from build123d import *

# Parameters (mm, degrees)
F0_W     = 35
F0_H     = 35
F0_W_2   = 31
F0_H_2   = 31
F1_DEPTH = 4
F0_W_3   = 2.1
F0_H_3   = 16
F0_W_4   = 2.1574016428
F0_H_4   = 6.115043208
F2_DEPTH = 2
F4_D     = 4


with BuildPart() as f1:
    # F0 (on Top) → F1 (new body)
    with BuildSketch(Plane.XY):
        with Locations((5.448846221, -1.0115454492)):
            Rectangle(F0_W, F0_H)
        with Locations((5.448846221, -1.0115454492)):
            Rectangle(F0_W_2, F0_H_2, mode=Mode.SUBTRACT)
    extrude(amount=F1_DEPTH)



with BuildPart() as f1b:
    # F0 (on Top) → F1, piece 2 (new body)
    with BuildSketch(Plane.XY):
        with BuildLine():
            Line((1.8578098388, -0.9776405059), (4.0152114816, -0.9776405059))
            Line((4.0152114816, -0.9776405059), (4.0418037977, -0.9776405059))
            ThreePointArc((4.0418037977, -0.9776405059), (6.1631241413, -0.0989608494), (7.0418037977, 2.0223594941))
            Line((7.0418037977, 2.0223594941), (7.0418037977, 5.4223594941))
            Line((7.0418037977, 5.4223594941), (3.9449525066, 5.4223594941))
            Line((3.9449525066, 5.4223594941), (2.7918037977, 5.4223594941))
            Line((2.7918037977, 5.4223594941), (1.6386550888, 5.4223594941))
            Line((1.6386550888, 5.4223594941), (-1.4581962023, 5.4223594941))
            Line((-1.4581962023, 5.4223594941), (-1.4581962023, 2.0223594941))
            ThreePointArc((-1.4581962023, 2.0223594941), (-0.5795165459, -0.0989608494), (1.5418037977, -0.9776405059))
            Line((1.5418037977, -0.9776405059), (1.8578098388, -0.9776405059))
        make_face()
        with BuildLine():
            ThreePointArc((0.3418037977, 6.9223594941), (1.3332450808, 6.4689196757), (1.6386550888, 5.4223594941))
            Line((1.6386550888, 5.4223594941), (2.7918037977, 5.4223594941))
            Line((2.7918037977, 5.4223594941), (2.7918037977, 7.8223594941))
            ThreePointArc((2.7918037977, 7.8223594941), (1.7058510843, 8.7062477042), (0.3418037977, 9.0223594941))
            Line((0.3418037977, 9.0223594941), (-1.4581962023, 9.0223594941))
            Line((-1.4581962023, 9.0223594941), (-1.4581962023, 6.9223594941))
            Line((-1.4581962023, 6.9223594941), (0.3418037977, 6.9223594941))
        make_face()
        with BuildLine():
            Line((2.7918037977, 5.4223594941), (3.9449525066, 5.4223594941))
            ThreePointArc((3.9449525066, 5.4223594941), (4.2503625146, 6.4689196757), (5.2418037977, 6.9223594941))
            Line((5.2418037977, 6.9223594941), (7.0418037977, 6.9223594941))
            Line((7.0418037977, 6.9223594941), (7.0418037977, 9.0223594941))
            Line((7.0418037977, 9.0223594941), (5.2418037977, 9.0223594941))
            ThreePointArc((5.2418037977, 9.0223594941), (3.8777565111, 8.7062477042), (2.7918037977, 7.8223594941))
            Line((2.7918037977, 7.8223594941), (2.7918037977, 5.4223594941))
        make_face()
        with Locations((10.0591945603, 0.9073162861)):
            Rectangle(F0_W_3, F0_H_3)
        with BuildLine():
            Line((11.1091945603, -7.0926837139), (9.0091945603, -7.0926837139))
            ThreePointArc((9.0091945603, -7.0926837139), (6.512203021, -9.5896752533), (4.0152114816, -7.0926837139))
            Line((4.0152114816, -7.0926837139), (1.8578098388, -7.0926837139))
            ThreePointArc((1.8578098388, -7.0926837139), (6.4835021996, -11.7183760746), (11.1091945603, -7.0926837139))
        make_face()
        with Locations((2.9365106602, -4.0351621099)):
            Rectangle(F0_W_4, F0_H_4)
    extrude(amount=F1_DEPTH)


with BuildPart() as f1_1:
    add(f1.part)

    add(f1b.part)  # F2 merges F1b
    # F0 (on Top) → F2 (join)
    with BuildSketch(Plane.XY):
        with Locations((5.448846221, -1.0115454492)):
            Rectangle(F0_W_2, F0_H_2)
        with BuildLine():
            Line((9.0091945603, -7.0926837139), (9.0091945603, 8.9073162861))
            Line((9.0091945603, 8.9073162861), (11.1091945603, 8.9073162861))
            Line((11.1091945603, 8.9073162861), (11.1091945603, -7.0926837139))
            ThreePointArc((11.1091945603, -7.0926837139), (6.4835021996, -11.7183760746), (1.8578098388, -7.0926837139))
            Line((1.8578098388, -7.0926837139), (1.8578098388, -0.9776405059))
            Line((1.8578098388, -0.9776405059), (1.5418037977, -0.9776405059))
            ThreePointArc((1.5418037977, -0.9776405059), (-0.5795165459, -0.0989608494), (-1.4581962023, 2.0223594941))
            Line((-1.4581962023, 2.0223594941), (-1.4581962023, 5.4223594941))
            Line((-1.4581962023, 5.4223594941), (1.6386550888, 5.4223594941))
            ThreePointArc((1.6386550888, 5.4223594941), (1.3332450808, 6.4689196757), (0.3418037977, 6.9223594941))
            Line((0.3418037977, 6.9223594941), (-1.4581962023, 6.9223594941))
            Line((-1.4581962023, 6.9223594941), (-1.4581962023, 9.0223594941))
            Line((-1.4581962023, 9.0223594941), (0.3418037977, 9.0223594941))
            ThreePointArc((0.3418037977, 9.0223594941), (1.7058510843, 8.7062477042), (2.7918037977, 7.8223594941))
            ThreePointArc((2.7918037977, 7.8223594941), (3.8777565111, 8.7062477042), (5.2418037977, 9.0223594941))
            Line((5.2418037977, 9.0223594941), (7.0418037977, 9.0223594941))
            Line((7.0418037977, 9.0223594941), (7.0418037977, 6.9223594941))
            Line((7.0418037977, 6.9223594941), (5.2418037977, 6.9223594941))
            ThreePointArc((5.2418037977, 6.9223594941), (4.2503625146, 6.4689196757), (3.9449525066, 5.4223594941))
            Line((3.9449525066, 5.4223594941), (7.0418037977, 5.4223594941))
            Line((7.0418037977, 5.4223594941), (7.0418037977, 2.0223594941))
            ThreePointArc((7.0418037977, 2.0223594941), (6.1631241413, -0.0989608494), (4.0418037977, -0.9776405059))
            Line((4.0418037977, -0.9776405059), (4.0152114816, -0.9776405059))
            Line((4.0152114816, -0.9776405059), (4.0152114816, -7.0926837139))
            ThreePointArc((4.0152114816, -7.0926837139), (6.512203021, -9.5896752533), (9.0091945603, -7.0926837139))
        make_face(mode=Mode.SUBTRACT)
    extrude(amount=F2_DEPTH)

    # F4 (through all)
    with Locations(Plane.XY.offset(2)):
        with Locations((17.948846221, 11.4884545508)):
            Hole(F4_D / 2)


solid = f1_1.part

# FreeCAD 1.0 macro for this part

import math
import FreeCAD as App
import Part
import Sketcher

V = App.Vector
Q = App.Units.Quantity


def add_polygon(sketch, points):
    """Adds a closed chain of lines whose ends are joined by coincident constraints."""
    first, n = sketch.GeometryCount, len(points)
    for a, b in zip(points, points[1:] + points[:1]):
        sketch.addGeometry(Part.LineSegment(App.Vector(*a, 0), App.Vector(*b, 0)), False)
    for i in range(n):
        sketch.addConstraint(Sketcher.Constraint("Coincident", first + i, 2, first + (i + 1) % n, 1))

doc = App.newDocument("Part")
params = doc.addObject("Spreadsheet::Sheet", "Params")
for row, (alias, value) in enumerate([
    ("sketch1_width", "35 mm"),
    ("sketch1_width2", "31 mm"),
    ("pad1_length", "4 mm"),
    ("sketch2_radius", "3 mm"),
    ("sketch2_height", "16 mm"),
    ("sketch2_width", "1.8 mm"),
    ("sketch2_width2", "2.1 mm"),
    ("sketch2_height2", "3.4 mm"),
    ("pad2_length", "4 mm"),
    ("sketch3_radius", "3 mm"),
    ("sketch3_width", "31 mm"),
    ("sketch3_height", "16 mm"),
    ("sketch3_width2", "2.1 mm"),
    ("sketch3_width3", "1.8 mm"),
    ("pad3_length", "2 mm"),
    ("sketch4_diameter", "4 mm"),
    ("hole_diameter", "4 mm"),
], start=1):
    params.set(f"A{row}", alias)
    params.set(f"B{row}", "=" + value)
    params.setAlias(f"B{row}", alias)

body = doc.addObject("PartDesign::Body", "Body")

sketch1 = body.newObject("Sketcher::SketchObject", "Sketch")
sketch1.AttachmentSupport = (doc.getObject("XY_Plane"), [""])
sketch1.MapMode = "FlatFace"
add_polygon(sketch1, [(-12, 16), (-12, -19), (23, -19), (23, 16)])
add_polygon(sketch1, [(21, -17), (-10, -17), (-10, 14), (21, 14)])
sketch1.addConstraint([
    Sketcher.Constraint("Vertical", 0),
    Sketcher.Constraint("Horizontal", 1),
    Sketcher.Constraint("Vertical", 2),
    Sketcher.Constraint("Horizontal", 3),
    Sketcher.Constraint("Horizontal", 4),
    Sketcher.Constraint("Vertical", 5),
    Sketcher.Constraint("Horizontal", 6),
    Sketcher.Constraint("Vertical", 7),
    Sketcher.Constraint("Equal", 3, 0),
    Sketcher.Constraint("Equal", 6, 5),
    Sketcher.Constraint("DistanceX", 1, 1, 1, 2, Q("35 mm")),
    Sketcher.Constraint("DistanceX", 4, 2, 4, 1, Q("31 mm")),
    Sketcher.Constraint("DistanceX", 0, 2, 4, 2, Q("2 mm")),
    Sketcher.Constraint("DistanceY", 0, 2, 4, 2, Q("2 mm")),
    Sketcher.Constraint("DistanceX", 0, 2, -1, 1, Q("12.051154 mm")),
    Sketcher.Constraint("DistanceY", 0, 2, -1, 1, Q("18.511545 mm")),
])
sketch1.setExpression("Constraints[18]", "Params.sketch1_width")
sketch1.setExpression("Constraints[19]", "Params.sketch1_width2")
pad1 = body.newObject("PartDesign::Pad", "Pad")
pad1.Profile = sketch1
pad1.setExpression("Length", "Params.pad1_length")
body2 = doc.addObject("PartDesign::Body", "Body001")

sketch2 = body2.newObject("Sketcher::SketchObject", "Sketch001")
sketch2.AttachmentSupport = (doc.getObject("XY_Plane001"), [""])
sketch2.MapMode = "FlatFace"
sketch2.addGeometry([
    Part.ArcOfCircle(Part.Circle(V(4.042, 2.022, 0), V(0, 0, 1), 3), math.radians(-90), math.radians(0)),
    Part.LineSegment(V(7.042, 2.022, 0), V(7.042, 5.422, 0)),
    Part.LineSegment(V(7.042, 5.422, 0), V(3.945, 5.422, 0)),
    Part.ArcOfCircle(Part.Circle(V(5.242, 5.612, 0), V(0, 0, 1), 1.311), math.radians(90), math.radians(188)),
    Part.LineSegment(V(5.242, 6.922, 0), V(7.042, 6.922, 0)),
    Part.LineSegment(V(7.042, 6.922, 0), V(7.042, 9.022, 0)),
    Part.LineSegment(V(7.042, 9.022, 0), V(5.242, 9.022, 0)),
    Part.ArcOfCircle(Part.Circle(V(5.242, 5.921, 0), V(0, 0, 1), 3.101), math.radians(90), math.radians(142)),
    Part.ArcOfCircle(Part.Circle(V(0.342, 5.921, 0), V(0, 0, 1), 3.101), math.radians(38), math.radians(90)),
    Part.LineSegment(V(0.342, 9.022, 0), V(-1.458, 9.022, 0)),
    Part.LineSegment(V(-1.458, 9.022, 0), V(-1.458, 6.922, 0)),
    Part.LineSegment(V(-1.458, 6.922, 0), V(0.342, 6.922, 0)),
    Part.ArcOfCircle(Part.Circle(V(0.342, 5.612, 0), V(0, 0, 1), 1.311), math.radians(-8), math.radians(90)),
    Part.LineSegment(V(1.639, 5.422, 0), V(-1.458, 5.422, 0)),
    Part.LineSegment(V(-1.458, 5.422, 0), V(-1.458, 2.022, 0)),
    Part.ArcOfCircle(Part.Circle(V(1.542, 2.022, 0), V(0, 0, 1), 3), math.radians(180), math.radians(270)),
    Part.LineSegment(V(1.542, -0.978, 0), V(1.858, -0.978, 0)),
    Part.LineSegment(V(1.858, -0.978, 0), V(1.858, -7.093, 0)),
    Part.ArcOfCircle(Part.Circle(V(6.484, -7.093, 0), V(0, 0, 1), 4.626), math.radians(180), math.radians(360)),
    Part.LineSegment(V(11.109, -7.093, 0), V(11.109, 8.907, 0)),
    Part.LineSegment(V(11.109, 8.907, 0), V(9.009, 8.907, 0)),
    Part.LineSegment(V(9.009, 8.907, 0), V(9.009, -7.093, 0)),
    Part.ArcOfCircle(Part.Circle(V(6.512, -7.093, 0), V(0, 0, 1), 2.497), math.radians(180), math.radians(360)),
    Part.LineSegment(V(4.015, -7.093, 0), V(4.015, -0.978, 0)),
    Part.LineSegment(V(4.015, -0.978, 0), V(4.042, -0.978, 0)),
], False)
sketch2.addConstraint([
    Sketcher.Constraint("Tangent", 0, 2, 1, 1),
    Sketcher.Constraint("Coincident", 1, 2, 2, 1),
    Sketcher.Constraint("Coincident", 2, 2, 3, 2),
    Sketcher.Constraint("Tangent", 3, 1, 4, 1),
    Sketcher.Constraint("Coincident", 4, 2, 5, 1),
    Sketcher.Constraint("Coincident", 5, 2, 6, 1),
    Sketcher.Constraint("Tangent", 6, 2, 7, 1),
    Sketcher.Constraint("Coincident", 7, 2, 8, 1),
    Sketcher.Constraint("Tangent", 8, 2, 9, 1),
    Sketcher.Constraint("Coincident", 9, 2, 10, 1),
    Sketcher.Constraint("Coincident", 10, 2, 11, 1),
    Sketcher.Constraint("Tangent", 11, 2, 12, 2),
    Sketcher.Constraint("Coincident", 12, 1, 13, 1),
    Sketcher.Constraint("Coincident", 13, 2, 14, 1),
    Sketcher.Constraint("Tangent", 14, 2, 15, 1),
    Sketcher.Constraint("Tangent", 15, 2, 16, 1),
    Sketcher.Constraint("Coincident", 16, 2, 17, 1),
    Sketcher.Constraint("Tangent", 17, 2, 18, 1),
    Sketcher.Constraint("Tangent", 18, 2, 19, 1),
    Sketcher.Constraint("Coincident", 19, 2, 20, 1),
    Sketcher.Constraint("Coincident", 20, 2, 21, 1),
    Sketcher.Constraint("Tangent", 21, 2, 22, 2),
    Sketcher.Constraint("Tangent", 22, 1, 23, 1),
    Sketcher.Constraint("Coincident", 23, 2, 24, 1),
    Sketcher.Constraint("Tangent", 24, 2, 0, 1),
    Sketcher.Constraint("Vertical", 1),
    Sketcher.Constraint("Horizontal", 2),
    Sketcher.Constraint("Horizontal", 4),
    Sketcher.Constraint("Vertical", 5),
    Sketcher.Constraint("Horizontal", 6),
    Sketcher.Constraint("Horizontal", 9),
    Sketcher.Constraint("Vertical", 10),
    Sketcher.Constraint("Horizontal", 11),
    Sketcher.Constraint("Horizontal", 13),
    Sketcher.Constraint("Vertical", 14),
    Sketcher.Constraint("Horizontal", 16),
    Sketcher.Constraint("Vertical", 17),
    Sketcher.Constraint("Vertical", 19),
    Sketcher.Constraint("Horizontal", 20),
    Sketcher.Constraint("Vertical", 21),
    Sketcher.Constraint("Vertical", 23),
    Sketcher.Constraint("Horizontal", 24),
    Sketcher.Constraint("Equal", 7, 8),
    Sketcher.Constraint("Equal", 3, 12),
    Sketcher.Constraint("Equal", 0, 15),
    Sketcher.Constraint("Horizontal", 7, 3, 8, 3),
    Sketcher.Constraint("Horizontal", 3, 3, 12, 3),
    Sketcher.Constraint("Horizontal", 0, 3, 15, 3),
    Sketcher.Constraint("Horizontal", 18, 3, 22, 3),
    Sketcher.Constraint("Horizontal", 2, 2, 12, 1),
    Sketcher.Constraint("Vertical", 3, 3, 7, 3),
    Sketcher.Constraint("Vertical", 8, 3, 12, 3),
    Sketcher.Constraint("Vertical", 1, 2, 4, 2),
    Sketcher.Constraint("Vertical", 10, 2, 13, 2),
    Sketcher.Constraint("Equal", 6, 9),
    Sketcher.Constraint("Equal", 20, 5),
    Sketcher.Constraint("Radius", 0, Q("3 mm")),
    Sketcher.Constraint("DistanceY", 19, 1, 19, 2, Q("16 mm")),
    Sketcher.Constraint("DistanceX", 4, 1, 4, 2, Q("1.8 mm")),
    Sketcher.Constraint("DistanceX", 20, 2, 20, 1, Q("2.1 mm")),
    Sketcher.Constraint("DistanceY", 1, 1, 1, 2, Q("3.4 mm")),
    Sketcher.Constraint("DistanceX", 8, 3, 7, 3, Q("4.9 mm")),
    Sketcher.Constraint("DistanceY", 2, 2, 3, 1, Q("1.5 mm")),
    Sketcher.Constraint("DistanceY", 3, 1, 7, 2, Q("0.9 mm")),
    Sketcher.Constraint("Radius", 22, Q("2.496992 mm")),
    Sketcher.Constraint("Radius", 3, Q("1.310608 mm")),
    Sketcher.Constraint("Radius", 18, Q("4.625692 mm")),
    Sketcher.Constraint("DistanceY", 18, 3, 7, 3, Q("13.014002 mm")),
    Sketcher.Constraint("DistanceX", 0, 3, 18, 3, Q("2.441698 mm")),
    Sketcher.Constraint("DistanceY", -1, 1, 0, 3, Q("2.022359 mm")),
    Sketcher.Constraint("DistanceX", -1, 1, 16, 2, Q("1.85781 mm")),
])
sketch2.setExpression("Constraints[56]", "Params.sketch2_radius")
sketch2.setExpression("Constraints[57]", "Params.sketch2_height")
sketch2.setExpression("Constraints[58]", "Params.sketch2_width")
sketch2.setExpression("Constraints[59]", "Params.sketch2_width2")
sketch2.setExpression("Constraints[60]", "Params.sketch2_height2")
pad2 = body2.newObject("PartDesign::Pad", "Pad001")
pad2.Profile = sketch2
pad2.setExpression("Length", "Params.pad2_length")
body.AllowCompound = True
doc.recompute()

boolean = body.newObject("PartDesign::Boolean", "Boolean")
boolean.Type = "Fuse"
boolean.addObjects([body2])

sketch3 = body.newObject("Sketcher::SketchObject", "Sketch002")
sketch3.AttachmentSupport = (doc.getObject("XY_Plane"), [""])
sketch3.MapMode = "FlatFace"
add_polygon(sketch3, [(-10.051, 14.488), (-10.051, -16.512), (20.949, -16.512), (20.949, 14.488)])
sketch3.addGeometry(Part.ArcOfCircle(Part.Circle(V(6.512, -7.093, 0), V(0, 0, 1), 2.497), math.radians(180), math.radians(360)), False)
sketch3.addGeometry(Part.LineSegment(V(9.009, -7.093, 0), V(9.009, 8.907, 0)), False)
sketch3.addGeometry(Part.LineSegment(V(9.009, 8.907, 0), V(11.109, 8.907, 0)), False)
sketch3.addGeometry(Part.LineSegment(V(11.109, 8.907, 0), V(11.109, -7.093, 0)), False)
sketch3.addGeometry(Part.ArcOfCircle(Part.Circle(V(6.484, -7.093, 0), V(0, 0, 1), 4.626), math.radians(180), math.radians(360)), False)
sketch3.addGeometry(Part.LineSegment(V(1.858, -7.093, 0), V(1.858, -0.978, 0)), False)
sketch3.addGeometry(Part.LineSegment(V(1.858, -0.978, 0), V(1.542, -0.978, 0)), False)
sketch3.addGeometry(Part.ArcOfCircle(Part.Circle(V(1.542, 2.022, 0), V(0, 0, 1), 3), math.radians(180), math.radians(270)), False)
sketch3.addGeometry(Part.LineSegment(V(-1.458, 2.022, 0), V(-1.458, 5.422, 0)), False)
sketch3.addGeometry(Part.LineSegment(V(-1.458, 5.422, 0), V(1.639, 5.422, 0)), False)
sketch3.addGeometry(Part.ArcOfCircle(Part.Circle(V(0.342, 5.612, 0), V(0, 0, 1), 1.311), math.radians(-8), math.radians(90)), False)
sketch3.addGeometry(Part.LineSegment(V(0.342, 6.922, 0), V(-1.458, 6.922, 0)), False)
sketch3.addGeometry(Part.LineSegment(V(-1.458, 6.922, 0), V(-1.458, 9.022, 0)), False)
sketch3.addGeometry(Part.LineSegment(V(-1.458, 9.022, 0), V(0.342, 9.022, 0)), False)
sketch3.addGeometry(Part.ArcOfCircle(Part.Circle(V(0.342, 5.921, 0), V(0, 0, 1), 3.101), math.radians(38), math.radians(90)), False)
sketch3.addGeometry(Part.ArcOfCircle(Part.Circle(V(5.242, 5.921, 0), V(0, 0, 1), 3.101), math.radians(90), math.radians(142)), False)
sketch3.addGeometry(Part.LineSegment(V(5.242, 9.022, 0), V(7.042, 9.022, 0)), False)
sketch3.addGeometry(Part.LineSegment(V(7.042, 9.022, 0), V(7.042, 6.922, 0)), False)
sketch3.addGeometry(Part.LineSegment(V(7.042, 6.922, 0), V(5.242, 6.922, 0)), False)
sketch3.addGeometry(Part.ArcOfCircle(Part.Circle(V(5.242, 5.612, 0), V(0, 0, 1), 1.311), math.radians(90), math.radians(188)), False)
sketch3.addGeometry(Part.LineSegment(V(3.945, 5.422, 0), V(7.042, 5.422, 0)), False)
sketch3.addGeometry(Part.LineSegment(V(7.042, 5.422, 0), V(7.042, 2.022, 0)), False)
sketch3.addGeometry(Part.ArcOfCircle(Part.Circle(V(4.042, 2.022, 0), V(0, 0, 1), 3), math.radians(-90), math.radians(0)), False)
sketch3.addGeometry(Part.LineSegment(V(4.042, -0.978, 0), V(4.015, -0.978, 0)), False)
sketch3.addGeometry(Part.LineSegment(V(4.015, -0.978, 0), V(4.015, -7.093, 0)), False)
sketch3.addConstraint([
    Sketcher.Constraint("Tangent", 4, 2, 5, 1),
    Sketcher.Constraint("Coincident", 5, 2, 6, 1),
    Sketcher.Constraint("Coincident", 6, 2, 7, 1),
    Sketcher.Constraint("Tangent", 7, 2, 8, 2),
    Sketcher.Constraint("Tangent", 8, 1, 9, 1),
    Sketcher.Constraint("Coincident", 9, 2, 10, 1),
    Sketcher.Constraint("Tangent", 10, 2, 11, 2),
    Sketcher.Constraint("Tangent", 11, 1, 12, 1),
    Sketcher.Constraint("Coincident", 12, 2, 13, 1),
    Sketcher.Constraint("Coincident", 13, 2, 14, 1),
    Sketcher.Constraint("Tangent", 14, 2, 15, 1),
    Sketcher.Constraint("Coincident", 15, 2, 16, 1),
    Sketcher.Constraint("Coincident", 16, 2, 17, 1),
    Sketcher.Constraint("Tangent", 17, 2, 18, 2),
    Sketcher.Constraint("Coincident", 18, 1, 19, 2),
    Sketcher.Constraint("Tangent", 19, 1, 20, 1),
    Sketcher.Constraint("Coincident", 20, 2, 21, 1),
    Sketcher.Constraint("Coincident", 21, 2, 22, 1),
    Sketcher.Constraint("Tangent", 22, 2, 23, 1),
    Sketcher.Constraint("Coincident", 23, 2, 24, 1),
    Sketcher.Constraint("Coincident", 24, 2, 25, 1),
    Sketcher.Constraint("Tangent", 25, 2, 26, 2),
    Sketcher.Constraint("Tangent", 26, 1, 27, 1),
    Sketcher.Constraint("Coincident", 27, 2, 28, 1),
    Sketcher.Constraint("Tangent", 28, 2, 4, 1),
    Sketcher.Constraint("Vertical", 0),
    Sketcher.Constraint("Horizontal", 1),
    Sketcher.Constraint("Vertical", 2),
    Sketcher.Constraint("Horizontal", 3),
    Sketcher.Constraint("Vertical", 5),
    Sketcher.Constraint("Horizontal", 6),
    Sketcher.Constraint("Vertical", 7),
    Sketcher.Constraint("Vertical", 9),
    Sketcher.Constraint("Horizontal", 10),
    Sketcher.Constraint("Vertical", 12),
    Sketcher.Constraint("Horizontal", 13),
    Sketcher.Constraint("Horizontal", 15),
    Sketcher.Constraint("Vertical", 16),
    Sketcher.Constraint("Horizontal", 17),
    Sketcher.Constraint("Horizontal", 20),
    Sketcher.Constraint("Vertical", 21),
    Sketcher.Constraint("Horizontal", 22),
    Sketcher.Constraint("Horizontal", 24),
    Sketcher.Constraint("Vertical", 25),
    Sketcher.Constraint("Horizontal", 27),
    Sketcher.Constraint("Vertical", 28),
    Sketcher.Constraint("Equal", 18, 19),
    Sketcher.Constraint("Equal", 14, 23),
    Sketcher.Constraint("Equal", 11, 26),
    Sketcher.Constraint("Horizontal", 4, 3, 8, 3),
    Sketcher.Constraint("Horizontal", 18, 3, 19, 3),
    Sketcher.Constraint("Horizontal", 14, 3, 23, 3),
    Sketcher.Constraint("Horizontal", 11, 3, 26, 3),
    Sketcher.Constraint("Horizontal", 13, 2, 23, 2),
    Sketcher.Constraint("Vertical", 14, 3, 18, 3),
    Sketcher.Constraint("Vertical", 19, 3, 23, 3),
    Sketcher.Constraint("Vertical", 12, 2, 15, 2),
    Sketcher.Constraint("Vertical", 21, 2, 24, 2),
    Sketcher.Constraint("Equal", 17, 20),
    Sketcher.Constraint("Equal", 3, 0),
    Sketcher.Constraint("Equal", 6, 16),
    Sketcher.Constraint("Radius", 11, Q("3 mm")),
    Sketcher.Constraint("DistanceX", 1, 1, 1, 2, Q("31 mm")),
    Sketcher.Constraint("DistanceY", 5, 1, 5, 2, Q("16 mm")),
    Sketcher.Constraint("DistanceX", 6, 1, 6, 2, Q("2.1 mm")),
    Sketcher.Constraint("DistanceX", 15, 2, 15, 1, Q("1.8 mm")),
    Sketcher.Constraint("DistanceY", 12, 1, 12, 2, Q("3.4 mm")),
    Sketcher.Constraint("DistanceX", 18, 3, 19, 3, Q("4.9 mm")),
    Sketcher.Constraint("DistanceY", 13, 2, 14, 2, Q("1.5 mm")),
    Sketcher.Constraint("DistanceY", 14, 2, 18, 1, Q("0.9 mm")),
    Sketcher.Constraint("Radius", 4, Q("2.496992 mm")),
    Sketcher.Constraint("Radius", 8, Q("4.625692 mm")),
    Sketcher.Constraint("Radius", 14, Q("1.310608 mm")),
    Sketcher.Constraint("DistanceY", 8, 3, 18, 3, Q("13.014002 mm")),
    Sketcher.Constraint("DistanceX", 11, 3, 8, 3, Q("4.941698 mm")),
    Sketcher.Constraint("DistanceY", -1, 1, 11, 3, Q("2.022359 mm")),
    Sketcher.Constraint("DistanceX", -1, 1, 8, 1, Q("1.85781 mm")),
    Sketcher.Constraint("DistanceY", 0, 2, 8, 3, Q("9.418862 mm")),
    Sketcher.Constraint("DistanceX", 0, 2, -1, 1, Q("10.051154 mm")),
])
sketch3.setExpression("Constraints[65]", "Params.sketch3_radius")
sketch3.setExpression("Constraints[66]", "Params.sketch3_width")
sketch3.setExpression("Constraints[67]", "Params.sketch3_height")
sketch3.setExpression("Constraints[68]", "Params.sketch3_width2")
sketch3.setExpression("Constraints[69]", "Params.sketch3_width3")
pad3 = body.newObject("PartDesign::Pad", "Pad002")
pad3.Profile = sketch3
pad3.setExpression("Length", "Params.pad3_length")

sketch4 = body.newObject("Sketcher::SketchObject", "Sketch003")
sketch4.AttachmentSupport = (doc.getObject("XY_Plane"), [""])
sketch4.MapMode = "FlatFace"
sketch4.AttachmentOffset = App.Placement(V(0, 0, 2), App.Rotation())
sketch4.addGeometry(Part.Circle(V(17.9, 11.5, 0), V(0, 0, 1), 2), False)
sketch4.addConstraint([
    Sketcher.Constraint("Diameter", 0, Q("4 mm")),
    Sketcher.Constraint("DistanceX", -1, 1, 0, 3, Q("17.948846 mm")),
    Sketcher.Constraint("DistanceY", -1, 1, 0, 3, Q("11.488455 mm")),
])
sketch4.setExpression("Constraints[0]", "Params.sketch4_diameter")
doc.recompute()
hole = body.newObject("PartDesign::Hole", "Hole")
hole.Profile = sketch4
hole.ThreadType = "None"
hole.setExpression("Diameter", "Params.hole_diameter")
hole.DepthType = "ThroughAll"

doc.recompute()
